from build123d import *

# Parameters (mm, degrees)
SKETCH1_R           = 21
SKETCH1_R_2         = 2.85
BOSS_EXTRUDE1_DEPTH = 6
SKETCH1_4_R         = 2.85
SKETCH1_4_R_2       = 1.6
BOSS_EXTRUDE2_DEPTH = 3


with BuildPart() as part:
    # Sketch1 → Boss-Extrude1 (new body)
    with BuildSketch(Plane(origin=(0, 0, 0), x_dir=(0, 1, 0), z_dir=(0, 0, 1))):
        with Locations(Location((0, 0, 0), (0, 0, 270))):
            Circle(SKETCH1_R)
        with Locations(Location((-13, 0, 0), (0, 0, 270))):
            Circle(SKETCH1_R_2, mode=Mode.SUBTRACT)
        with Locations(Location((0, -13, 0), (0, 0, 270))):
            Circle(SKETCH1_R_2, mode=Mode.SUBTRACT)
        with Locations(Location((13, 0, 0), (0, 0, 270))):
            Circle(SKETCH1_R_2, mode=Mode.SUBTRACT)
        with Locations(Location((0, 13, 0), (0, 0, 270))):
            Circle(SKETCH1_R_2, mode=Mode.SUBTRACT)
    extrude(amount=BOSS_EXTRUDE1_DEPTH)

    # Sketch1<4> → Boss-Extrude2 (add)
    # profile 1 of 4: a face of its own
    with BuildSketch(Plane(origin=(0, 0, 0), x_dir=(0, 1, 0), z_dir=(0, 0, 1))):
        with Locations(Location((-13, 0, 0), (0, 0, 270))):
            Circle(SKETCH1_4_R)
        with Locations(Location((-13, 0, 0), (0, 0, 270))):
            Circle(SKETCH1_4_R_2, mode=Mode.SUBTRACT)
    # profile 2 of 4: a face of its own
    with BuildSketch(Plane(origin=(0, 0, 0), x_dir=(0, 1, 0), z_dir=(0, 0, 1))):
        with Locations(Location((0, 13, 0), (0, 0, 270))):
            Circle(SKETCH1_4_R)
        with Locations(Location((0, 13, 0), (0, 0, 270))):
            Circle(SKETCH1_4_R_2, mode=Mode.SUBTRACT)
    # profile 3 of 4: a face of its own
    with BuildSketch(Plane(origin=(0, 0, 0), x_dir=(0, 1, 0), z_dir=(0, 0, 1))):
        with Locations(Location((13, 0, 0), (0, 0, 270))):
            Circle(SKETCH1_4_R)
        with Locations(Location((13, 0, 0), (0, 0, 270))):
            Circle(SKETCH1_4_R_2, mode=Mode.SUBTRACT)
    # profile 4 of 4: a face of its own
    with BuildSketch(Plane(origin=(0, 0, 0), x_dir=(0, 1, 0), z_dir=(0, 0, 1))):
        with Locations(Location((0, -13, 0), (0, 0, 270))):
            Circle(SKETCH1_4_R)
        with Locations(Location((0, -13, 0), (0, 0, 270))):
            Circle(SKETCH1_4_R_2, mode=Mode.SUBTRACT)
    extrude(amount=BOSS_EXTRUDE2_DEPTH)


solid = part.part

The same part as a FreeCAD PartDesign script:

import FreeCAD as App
import Part
import Sketcher

doc = App.newDocument("Part")
params = doc.addObject("Spreadsheet::Sheet", "Params")
for row, (alias, value) in enumerate([
    ("sketch1_diameter", "42 mm"),
    ("sketch1_diameter2", "5.7 mm"),
    ("pad1_length", "6 mm"),
    ("sketch2_diameter", "5.7 mm"),
    ("sketch2_diameter2", "3.2 mm"),
    ("pad2_length", "3 mm"),
], start=1):
    params.set(f"A{row}", alias)
    params.set(f"B{row}", "=" + value)
    params.setAlias(f"B{row}", alias)

body = doc.addObject("PartDesign::Body", "Body")

sketch1 = body.newObject("Sketcher::SketchObject", "Sketch")
sketch1.AttachmentSupport = (doc.getObject("XY_Plane"), [""])
sketch1.MapMode = "FlatFace"
sketch1.addGeometry([
    Part.Circle(App.Vector(0, 0, 0), App.Vector(0, 0, 1), 21),
    Part.Circle(App.Vector(-13, 0, 0), App.Vector(0, 0, 1), 2.9),
    Part.Circle(App.Vector(0, -13, 0), App.Vector(0, 0, 1), 2.9),
    Part.Circle(App.Vector(0, 13, 0), App.Vector(0, 0, 1), 2.9),
    Part.Circle(App.Vector(13, 0, 0), App.Vector(0, 0, 1), 2.9),
], False)
sketch1.addConstraint([
    Sketcher.Constraint("Coincident", 0, 3, -1, 1),
    Sketcher.Constraint("Equal", 1, 2),
    Sketcher.Constraint("Equal", 2, 3),
    Sketcher.Constraint("Equal", 3, 4),
    Sketcher.Constraint("Symmetric", 2, 3, 3, 3, -1, 1),
    Sketcher.Constraint("Symmetric", 1, 3, 4, 3, -1, 1),
    Sketcher.Constraint("PointOnObject", 1, 3, -1),
    Sketcher.Constraint("PointOnObject", 2, 3, -2),
    Sketcher.Constraint("Diameter", 0, 42.0),
    Sketcher.Constraint("Diameter", 1, 5.7),
    Sketcher.Constraint("DistanceX", 1, 3, -1, 1, 13.0),
    Sketcher.Constraint("DistanceY", 2, 3, -1, 1, 13.0),
])
sketch1.setExpression("Constraints[8]", "Params.sketch1_diameter")
sketch1.setExpression("Constraints[9]", "Params.sketch1_diameter2")
pad1 = body.newObject("PartDesign::Pad", "Pad")
pad1.Profile = sketch1
pad1.setExpression("Length", "Params.pad1_length")

sketch2 = body.newObject("Sketcher::SketchObject", "Sketch001")
sketch2.AttachmentSupport = (doc.getObject("XY_Plane"), [""])
sketch2.MapMode = "FlatFace"
sketch2.addGeometry([
    Part.Circle(App.Vector(0, -13, 0), App.Vector(0, 0, 1), 2.9),
    Part.Circle(App.Vector(0, -13, 0), App.Vector(0, 0, 1), 1.6),
    Part.Circle(App.Vector(-13, 0, 0), App.Vector(0, 0, 1), 2.9),
    Part.Circle(App.Vector(-13, 0, 0), App.Vector(0, 0, 1), 1.6),
    Part.Circle(App.Vector(0, 13, 0), App.Vector(0, 0, 1), 2.9),
    Part.Circle(App.Vector(0, 13, 0), App.Vector(0, 0, 1), 1.6),
    Part.Circle(App.Vector(13, 0, 0), App.Vector(0, 0, 1), 2.9),
    Part.Circle(App.Vector(13, 0, 0), App.Vector(0, 0, 1), 1.6),
], False)
sketch2.addConstraint([
    Sketcher.Constraint("Coincident", 1, 3, 0, 3),
    Sketcher.Constraint("Coincident", 3, 3, 2, 3),
    Sketcher.Constraint("Coincident", 5, 3, 4, 3),
    Sketcher.Constraint("Coincident", 7, 3, 6, 3),
    Sketcher.Constraint("Equal", 0, 2),
    Sketcher.Constraint("Equal", 1, 3),
    Sketcher.Constraint("Equal", 2, 4),
    Sketcher.Constraint("Equal", 3, 5),
    Sketcher.Constraint("Equal", 4, 6),
    Sketcher.Constraint("Equal", 5, 7),
    Sketcher.Constraint("Symmetric", 0, 3, 4, 3, -1, 1),
    Sketcher.Constraint("Symmetric", 2, 3, 6, 3, -1, 1),
    Sketcher.Constraint("PointOnObject", 0, 3, -2),
    Sketcher.Constraint("PointOnObject", 2, 3, -1),
    Sketcher.Constraint("Diameter", 0, 5.7),
    Sketcher.Constraint("Diameter", 1, 3.2),
    Sketcher.Constraint("DistanceY", 0, 3, -1, 1, 13.0),
    Sketcher.Constraint("DistanceX", 2, 3, -1, 1, 13.0),
])
sketch2.setExpression("Constraints[14]", "Params.sketch2_diameter")
sketch2.setExpression("Constraints[15]", "Params.sketch2_diameter2")
pad2 = body.newObject("PartDesign::Pad", "Pad001")
pad2.Profile = sketch2
pad2.setExpression("Length", "Params.pad2_length")

doc.recompute()
